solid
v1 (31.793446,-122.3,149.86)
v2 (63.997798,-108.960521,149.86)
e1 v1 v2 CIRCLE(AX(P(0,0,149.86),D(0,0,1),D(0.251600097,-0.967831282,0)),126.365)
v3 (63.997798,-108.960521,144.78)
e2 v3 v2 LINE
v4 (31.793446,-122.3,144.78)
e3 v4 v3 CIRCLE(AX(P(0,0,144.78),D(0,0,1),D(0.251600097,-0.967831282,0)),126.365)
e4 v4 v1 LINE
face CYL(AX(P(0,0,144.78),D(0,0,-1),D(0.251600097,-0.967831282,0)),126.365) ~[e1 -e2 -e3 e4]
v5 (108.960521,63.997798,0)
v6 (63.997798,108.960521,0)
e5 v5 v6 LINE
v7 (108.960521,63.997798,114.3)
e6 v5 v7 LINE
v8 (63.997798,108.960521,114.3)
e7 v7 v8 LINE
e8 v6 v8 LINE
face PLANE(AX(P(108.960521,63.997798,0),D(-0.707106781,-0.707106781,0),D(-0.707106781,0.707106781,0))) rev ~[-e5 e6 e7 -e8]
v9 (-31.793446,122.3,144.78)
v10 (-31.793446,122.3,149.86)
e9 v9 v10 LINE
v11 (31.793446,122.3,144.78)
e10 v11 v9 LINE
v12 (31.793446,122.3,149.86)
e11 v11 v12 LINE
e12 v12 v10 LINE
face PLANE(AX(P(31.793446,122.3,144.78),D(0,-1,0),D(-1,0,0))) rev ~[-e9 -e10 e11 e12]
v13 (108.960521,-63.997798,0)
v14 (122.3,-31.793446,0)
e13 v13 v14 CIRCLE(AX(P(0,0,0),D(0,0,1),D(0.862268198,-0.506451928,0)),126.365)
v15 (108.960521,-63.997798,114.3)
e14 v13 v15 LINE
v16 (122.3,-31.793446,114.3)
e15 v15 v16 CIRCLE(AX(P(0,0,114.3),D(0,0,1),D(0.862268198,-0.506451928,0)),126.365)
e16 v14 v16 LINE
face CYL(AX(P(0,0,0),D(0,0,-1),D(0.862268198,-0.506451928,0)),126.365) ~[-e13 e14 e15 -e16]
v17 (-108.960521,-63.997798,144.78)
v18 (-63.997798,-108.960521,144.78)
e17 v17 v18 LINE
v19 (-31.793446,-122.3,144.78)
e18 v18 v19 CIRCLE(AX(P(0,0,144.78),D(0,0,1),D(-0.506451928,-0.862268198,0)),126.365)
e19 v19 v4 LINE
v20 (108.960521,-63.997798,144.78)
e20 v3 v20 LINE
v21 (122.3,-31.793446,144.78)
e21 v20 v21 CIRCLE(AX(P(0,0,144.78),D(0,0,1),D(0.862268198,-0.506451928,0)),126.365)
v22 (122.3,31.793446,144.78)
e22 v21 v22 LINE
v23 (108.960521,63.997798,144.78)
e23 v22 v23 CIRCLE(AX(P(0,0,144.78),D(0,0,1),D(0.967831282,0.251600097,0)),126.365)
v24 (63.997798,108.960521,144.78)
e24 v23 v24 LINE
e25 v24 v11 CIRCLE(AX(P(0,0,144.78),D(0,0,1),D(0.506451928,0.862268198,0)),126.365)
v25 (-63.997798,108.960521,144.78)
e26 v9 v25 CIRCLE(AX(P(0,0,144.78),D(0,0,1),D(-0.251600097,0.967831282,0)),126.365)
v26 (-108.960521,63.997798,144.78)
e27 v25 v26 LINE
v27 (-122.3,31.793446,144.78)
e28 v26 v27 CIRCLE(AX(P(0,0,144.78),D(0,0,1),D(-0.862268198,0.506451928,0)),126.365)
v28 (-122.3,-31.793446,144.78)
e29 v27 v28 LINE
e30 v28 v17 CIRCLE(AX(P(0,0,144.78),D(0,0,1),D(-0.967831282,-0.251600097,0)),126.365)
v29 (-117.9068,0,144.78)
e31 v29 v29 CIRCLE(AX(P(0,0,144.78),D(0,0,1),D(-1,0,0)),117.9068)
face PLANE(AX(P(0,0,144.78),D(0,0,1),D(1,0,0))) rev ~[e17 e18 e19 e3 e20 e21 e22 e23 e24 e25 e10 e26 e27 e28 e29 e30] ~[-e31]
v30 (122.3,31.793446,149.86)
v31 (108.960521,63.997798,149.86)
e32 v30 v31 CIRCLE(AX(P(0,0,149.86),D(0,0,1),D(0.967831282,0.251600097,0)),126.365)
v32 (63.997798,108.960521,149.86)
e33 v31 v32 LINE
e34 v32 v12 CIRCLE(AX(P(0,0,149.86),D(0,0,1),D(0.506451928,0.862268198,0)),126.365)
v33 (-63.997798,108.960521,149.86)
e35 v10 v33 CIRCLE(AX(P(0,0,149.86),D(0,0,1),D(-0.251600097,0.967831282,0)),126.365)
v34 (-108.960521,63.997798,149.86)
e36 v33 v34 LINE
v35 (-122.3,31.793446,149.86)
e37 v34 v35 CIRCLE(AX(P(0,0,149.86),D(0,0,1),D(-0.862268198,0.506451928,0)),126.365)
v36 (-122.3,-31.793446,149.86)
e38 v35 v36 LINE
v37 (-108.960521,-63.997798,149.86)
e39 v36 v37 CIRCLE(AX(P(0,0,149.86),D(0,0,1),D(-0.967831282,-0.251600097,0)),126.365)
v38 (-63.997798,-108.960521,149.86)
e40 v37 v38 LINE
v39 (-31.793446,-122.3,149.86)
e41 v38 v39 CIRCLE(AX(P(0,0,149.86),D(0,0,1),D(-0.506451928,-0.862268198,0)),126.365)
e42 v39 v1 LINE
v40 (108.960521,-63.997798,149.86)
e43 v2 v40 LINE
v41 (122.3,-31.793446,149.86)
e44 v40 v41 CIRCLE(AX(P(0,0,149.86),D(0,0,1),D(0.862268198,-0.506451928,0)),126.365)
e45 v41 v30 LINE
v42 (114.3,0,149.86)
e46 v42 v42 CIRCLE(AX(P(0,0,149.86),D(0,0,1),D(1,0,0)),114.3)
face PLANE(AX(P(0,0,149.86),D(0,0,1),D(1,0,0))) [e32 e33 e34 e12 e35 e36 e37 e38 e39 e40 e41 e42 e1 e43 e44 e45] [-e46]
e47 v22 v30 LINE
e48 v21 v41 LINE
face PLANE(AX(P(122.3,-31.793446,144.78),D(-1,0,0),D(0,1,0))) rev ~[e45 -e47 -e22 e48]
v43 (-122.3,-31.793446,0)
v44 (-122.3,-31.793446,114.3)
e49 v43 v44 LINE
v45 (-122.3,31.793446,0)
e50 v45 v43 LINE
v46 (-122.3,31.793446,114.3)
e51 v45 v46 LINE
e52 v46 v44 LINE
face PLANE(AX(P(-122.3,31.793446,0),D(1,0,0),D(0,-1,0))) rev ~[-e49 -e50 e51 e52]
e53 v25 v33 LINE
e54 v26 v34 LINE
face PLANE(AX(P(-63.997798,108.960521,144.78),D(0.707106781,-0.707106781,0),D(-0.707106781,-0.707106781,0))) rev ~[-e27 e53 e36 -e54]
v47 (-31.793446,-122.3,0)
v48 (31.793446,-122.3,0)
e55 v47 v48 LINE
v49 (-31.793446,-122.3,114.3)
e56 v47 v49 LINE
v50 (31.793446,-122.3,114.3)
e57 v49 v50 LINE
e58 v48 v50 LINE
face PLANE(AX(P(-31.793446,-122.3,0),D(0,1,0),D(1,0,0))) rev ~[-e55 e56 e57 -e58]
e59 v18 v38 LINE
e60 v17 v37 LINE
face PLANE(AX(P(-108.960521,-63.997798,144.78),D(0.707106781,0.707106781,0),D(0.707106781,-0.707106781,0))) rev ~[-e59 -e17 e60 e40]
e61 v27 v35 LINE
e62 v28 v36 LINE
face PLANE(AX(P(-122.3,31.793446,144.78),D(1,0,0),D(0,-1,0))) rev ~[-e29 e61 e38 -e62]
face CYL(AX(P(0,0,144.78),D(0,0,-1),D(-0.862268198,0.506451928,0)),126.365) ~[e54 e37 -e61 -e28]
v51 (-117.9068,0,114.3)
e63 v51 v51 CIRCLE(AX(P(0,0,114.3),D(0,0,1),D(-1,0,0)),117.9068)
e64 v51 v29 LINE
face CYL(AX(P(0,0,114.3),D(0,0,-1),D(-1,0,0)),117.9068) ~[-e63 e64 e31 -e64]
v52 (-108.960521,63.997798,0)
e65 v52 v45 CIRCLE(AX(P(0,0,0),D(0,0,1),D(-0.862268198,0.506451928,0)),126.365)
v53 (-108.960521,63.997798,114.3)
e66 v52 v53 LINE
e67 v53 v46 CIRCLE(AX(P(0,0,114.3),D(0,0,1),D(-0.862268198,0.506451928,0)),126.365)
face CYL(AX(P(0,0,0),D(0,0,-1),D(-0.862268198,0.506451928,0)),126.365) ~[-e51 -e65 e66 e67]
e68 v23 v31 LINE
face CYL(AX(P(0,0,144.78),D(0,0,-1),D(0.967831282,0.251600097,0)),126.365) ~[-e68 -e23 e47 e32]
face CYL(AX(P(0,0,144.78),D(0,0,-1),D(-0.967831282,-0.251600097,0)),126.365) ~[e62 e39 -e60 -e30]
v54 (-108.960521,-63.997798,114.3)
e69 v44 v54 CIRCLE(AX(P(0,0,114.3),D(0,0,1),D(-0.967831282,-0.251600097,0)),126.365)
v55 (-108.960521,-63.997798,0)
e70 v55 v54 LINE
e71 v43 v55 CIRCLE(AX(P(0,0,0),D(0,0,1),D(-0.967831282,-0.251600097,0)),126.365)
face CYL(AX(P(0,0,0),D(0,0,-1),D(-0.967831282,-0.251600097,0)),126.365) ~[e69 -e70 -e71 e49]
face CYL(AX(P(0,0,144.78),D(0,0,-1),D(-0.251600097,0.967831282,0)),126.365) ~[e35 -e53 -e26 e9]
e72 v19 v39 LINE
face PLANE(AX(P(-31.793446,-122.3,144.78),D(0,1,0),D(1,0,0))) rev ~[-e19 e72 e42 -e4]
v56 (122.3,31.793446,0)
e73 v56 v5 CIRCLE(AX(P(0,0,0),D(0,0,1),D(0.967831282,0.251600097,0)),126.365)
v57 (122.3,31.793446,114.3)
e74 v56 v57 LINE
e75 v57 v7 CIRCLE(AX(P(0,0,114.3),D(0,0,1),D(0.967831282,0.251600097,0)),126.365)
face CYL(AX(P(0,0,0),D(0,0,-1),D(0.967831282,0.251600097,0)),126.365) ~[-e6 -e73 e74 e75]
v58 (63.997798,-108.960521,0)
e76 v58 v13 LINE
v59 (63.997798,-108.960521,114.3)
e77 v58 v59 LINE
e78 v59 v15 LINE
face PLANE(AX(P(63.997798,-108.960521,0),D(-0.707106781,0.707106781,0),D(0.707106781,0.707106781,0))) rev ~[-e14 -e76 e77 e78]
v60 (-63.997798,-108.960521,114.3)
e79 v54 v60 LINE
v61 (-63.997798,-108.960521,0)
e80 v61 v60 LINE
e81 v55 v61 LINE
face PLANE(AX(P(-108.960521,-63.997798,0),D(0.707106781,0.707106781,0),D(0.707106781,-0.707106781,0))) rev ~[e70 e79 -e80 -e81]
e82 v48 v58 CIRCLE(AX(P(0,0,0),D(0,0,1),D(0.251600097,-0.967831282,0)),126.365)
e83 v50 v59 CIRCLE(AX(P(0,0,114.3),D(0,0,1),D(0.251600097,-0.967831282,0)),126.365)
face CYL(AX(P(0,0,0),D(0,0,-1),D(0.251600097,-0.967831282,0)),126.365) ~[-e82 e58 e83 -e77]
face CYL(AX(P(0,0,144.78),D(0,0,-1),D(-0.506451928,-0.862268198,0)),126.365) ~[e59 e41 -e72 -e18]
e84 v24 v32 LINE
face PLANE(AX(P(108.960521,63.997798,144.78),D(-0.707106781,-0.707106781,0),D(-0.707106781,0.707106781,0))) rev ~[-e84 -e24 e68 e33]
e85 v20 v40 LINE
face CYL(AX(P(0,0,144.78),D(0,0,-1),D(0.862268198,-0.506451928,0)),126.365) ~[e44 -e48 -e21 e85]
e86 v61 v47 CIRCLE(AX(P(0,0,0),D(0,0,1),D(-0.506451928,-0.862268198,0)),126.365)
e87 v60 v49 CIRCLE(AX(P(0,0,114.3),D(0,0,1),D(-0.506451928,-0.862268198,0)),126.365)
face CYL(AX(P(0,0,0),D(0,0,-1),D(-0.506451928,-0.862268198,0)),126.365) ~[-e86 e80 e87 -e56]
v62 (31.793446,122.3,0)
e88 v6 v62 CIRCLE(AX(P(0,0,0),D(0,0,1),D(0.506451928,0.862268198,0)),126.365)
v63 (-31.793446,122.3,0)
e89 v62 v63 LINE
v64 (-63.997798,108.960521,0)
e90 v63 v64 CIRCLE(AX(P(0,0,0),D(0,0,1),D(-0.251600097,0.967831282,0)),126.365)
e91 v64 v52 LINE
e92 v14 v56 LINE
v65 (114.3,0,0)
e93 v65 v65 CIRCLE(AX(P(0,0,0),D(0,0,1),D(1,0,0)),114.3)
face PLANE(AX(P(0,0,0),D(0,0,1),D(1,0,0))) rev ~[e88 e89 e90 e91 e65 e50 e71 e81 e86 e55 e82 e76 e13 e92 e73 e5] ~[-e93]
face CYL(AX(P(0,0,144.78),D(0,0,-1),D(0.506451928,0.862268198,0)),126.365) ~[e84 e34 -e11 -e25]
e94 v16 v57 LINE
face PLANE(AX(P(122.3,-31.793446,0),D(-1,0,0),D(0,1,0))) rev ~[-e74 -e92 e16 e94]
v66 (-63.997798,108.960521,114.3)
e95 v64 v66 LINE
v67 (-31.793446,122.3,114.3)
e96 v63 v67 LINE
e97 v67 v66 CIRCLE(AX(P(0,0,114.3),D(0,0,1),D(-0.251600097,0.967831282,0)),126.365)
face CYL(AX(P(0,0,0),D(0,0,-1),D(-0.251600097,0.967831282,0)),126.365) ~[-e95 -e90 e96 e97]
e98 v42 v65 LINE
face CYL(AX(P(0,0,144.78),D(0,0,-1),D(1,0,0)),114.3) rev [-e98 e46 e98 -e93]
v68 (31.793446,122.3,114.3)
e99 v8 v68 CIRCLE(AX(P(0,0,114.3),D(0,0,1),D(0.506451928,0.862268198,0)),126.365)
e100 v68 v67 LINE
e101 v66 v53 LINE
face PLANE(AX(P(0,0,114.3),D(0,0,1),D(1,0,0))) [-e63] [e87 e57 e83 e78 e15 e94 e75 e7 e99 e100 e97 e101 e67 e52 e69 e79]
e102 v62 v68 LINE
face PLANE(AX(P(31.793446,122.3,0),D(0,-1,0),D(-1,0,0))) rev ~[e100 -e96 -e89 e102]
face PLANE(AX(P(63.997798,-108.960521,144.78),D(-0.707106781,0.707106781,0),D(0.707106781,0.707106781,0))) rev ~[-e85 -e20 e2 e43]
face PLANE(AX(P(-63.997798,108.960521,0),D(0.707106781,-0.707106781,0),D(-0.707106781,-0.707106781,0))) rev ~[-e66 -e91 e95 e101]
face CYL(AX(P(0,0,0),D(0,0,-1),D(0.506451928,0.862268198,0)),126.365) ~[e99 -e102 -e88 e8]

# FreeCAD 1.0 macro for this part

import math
import FreeCAD as App
import Part
import Sketcher
Q = App.Units.Quantity

doc = App.newDocument("Part")
body = doc.addObject("PartDesign::Body", "Body")

# Sketch on XY plane
sketch1 = body.newObject("Sketcher::SketchObject", "Sketch")
sketch1.AttachmentSupport = (doc.getObject("XY_Plane"), [""])
sketch1.MapMode = "FlatFace"
sketch1.addGeometry(Part.ArcOfCircle(Part.Circle(App.Vector(0, 0, 0), App.Vector(0, 0, 1), 126), math.radians(104.57), math.radians(120.43)), False)
sketch1.addGeometry(Part.LineSegment(App.Vector(-64, 109, 0), App.Vector(-109, 64, 0)), False)
sketch1.addGeometry(Part.ArcOfCircle(Part.Circle(App.Vector(0, 0, 0), App.Vector(0, 0, 1), 126), math.radians(149.57), math.radians(165.43)), False)
sketch1.addGeometry(Part.LineSegment(App.Vector(-122, 32, 0), App.Vector(-122, -32, 0)), False)
sketch1.addGeometry(Part.ArcOfCircle(Part.Circle(App.Vector(0, 0, 0), App.Vector(0, 0, 1), 126), math.radians(-165.43), math.radians(-149.57)), False)
sketch1.addGeometry(Part.LineSegment(App.Vector(-109, -64, 0), App.Vector(-64, -109, 0)), False)
sketch1.addGeometry(Part.ArcOfCircle(Part.Circle(App.Vector(0, 0, 0), App.Vector(0, 0, 1), 126), math.radians(-120.43), math.radians(-104.57)), False)
sketch1.addGeometry(Part.LineSegment(App.Vector(-32, -122, 0), App.Vector(32, -122, 0)), False)
sketch1.addGeometry(Part.ArcOfCircle(Part.Circle(App.Vector(0, 0, 0), App.Vector(0, 0, 1), 126), math.radians(-75.43), math.radians(-59.57)), False)
sketch1.addGeometry(Part.LineSegment(App.Vector(64, -109, 0), App.Vector(109, -64, 0)), False)
sketch1.addGeometry(Part.ArcOfCircle(Part.Circle(App.Vector(0, 0, 0), App.Vector(0, 0, 1), 126), math.radians(-30.43), math.radians(-14.57)), False)
sketch1.addGeometry(Part.LineSegment(App.Vector(122, -32, 0), App.Vector(122, 32, 0)), False)
sketch1.addGeometry(Part.ArcOfCircle(Part.Circle(App.Vector(0, 0, 0), App.Vector(0, 0, 1), 126), math.radians(14.57), math.radians(30.43)), False)
sketch1.addGeometry(Part.LineSegment(App.Vector(109, 64, 0), App.Vector(64, 109, 0)), False)
sketch1.addGeometry(Part.ArcOfCircle(Part.Circle(App.Vector(0, 0, 0), App.Vector(0, 0, 1), 126), math.radians(59.57), math.radians(75.43)), False)
sketch1.addGeometry(Part.LineSegment(App.Vector(32, 122, 0), App.Vector(-32, 122, 0)), False)
sketch1.addGeometry(Part.Circle(App.Vector(0, 0, 0), App.Vector(0, 0, 1), 114), False)
sketch1.addConstraint(Sketcher.Constraint("Coincident", 0, 2, 1, 1))
sketch1.addConstraint(Sketcher.Constraint("Coincident", 1, 2, 2, 1))
sketch1.addConstraint(Sketcher.Constraint("Coincident", 2, 2, 3, 1))
sketch1.addConstraint(Sketcher.Constraint("Coincident", 3, 2, 4, 1))
sketch1.addConstraint(Sketcher.Constraint("Coincident", 4, 2, 5, 1))
sketch1.addConstraint(Sketcher.Constraint("Coincident", 5, 2, 6, 1))
sketch1.addConstraint(Sketcher.Constraint("Coincident", 6, 2, 7, 1))
sketch1.addConstraint(Sketcher.Constraint("Coincident", 7, 2, 8, 1))
sketch1.addConstraint(Sketcher.Constraint("Coincident", 8, 2, 9, 1))
sketch1.addConstraint(Sketcher.Constraint("Coincident", 9, 2, 10, 1))
sketch1.addConstraint(Sketcher.Constraint("Coincident", 10, 2, 11, 1))
sketch1.addConstraint(Sketcher.Constraint("Coincident", 11, 2, 12, 1))
sketch1.addConstraint(Sketcher.Constraint("Coincident", 12, 2, 13, 1))
sketch1.addConstraint(Sketcher.Constraint("Coincident", 13, 2, 14, 1))
sketch1.addConstraint(Sketcher.Constraint("Coincident", 14, 2, 15, 1))
sketch1.addConstraint(Sketcher.Constraint("Coincident", 15, 2, 0, 1))
sketch1.addConstraint(Sketcher.Constraint("Vertical", 3))
sketch1.addConstraint(Sketcher.Constraint("Horizontal", 7))
sketch1.addConstraint(Sketcher.Constraint("Vertical", 11))
sketch1.addConstraint(Sketcher.Constraint("Horizontal", 15))
sketch1.addConstraint(Sketcher.Constraint("Coincident", 0, 3, -1, 1))
sketch1.addConstraint(Sketcher.Constraint("Coincident", 2, 3, -1, 1))
sketch1.addConstraint(Sketcher.Constraint("Coincident", 4, 3, -1, 1))
sketch1.addConstraint(Sketcher.Constraint("Coincident", 6, 3, -1, 1))
sketch1.addConstraint(Sketcher.Constraint("Coincident", 8, 3, -1, 1))
sketch1.addConstraint(Sketcher.Constraint("Coincident", 10, 3, -1, 1))
sketch1.addConstraint(Sketcher.Constraint("Coincident", 12, 3, -1, 1))
sketch1.addConstraint(Sketcher.Constraint("Coincident", 14, 3, -1, 1))
sketch1.addConstraint(Sketcher.Constraint("Coincident", 16, 3, -1, 1))
sketch1.addConstraint(Sketcher.Constraint("Equal", 0, 2))
sketch1.addConstraint(Sketcher.Constraint("Equal", 2, 4))
sketch1.addConstraint(Sketcher.Constraint("Equal", 4, 6))
sketch1.addConstraint(Sketcher.Constraint("Equal", 6, 8))
sketch1.addConstraint(Sketcher.Constraint("Equal", 8, 10))
sketch1.addConstraint(Sketcher.Constraint("Equal", 10, 12))
sketch1.addConstraint(Sketcher.Constraint("Equal", 12, 14))
sketch1.addConstraint(Sketcher.Constraint("Perpendicular", 1, 5))
sketch1.addConstraint(Sketcher.Constraint("Perpendicular", 5, 9))
sketch1.addConstraint(Sketcher.Constraint("Perpendicular", 9, 13))
sketch1.addConstraint(Sketcher.Constraint("Horizontal", 5, 2, 8, 2))
sketch1.addConstraint(Sketcher.Constraint("Horizontal", 4, 2, 9, 2))
sketch1.addConstraint(Sketcher.Constraint("Horizontal", 3, 2, 10, 2))
sketch1.addConstraint(Sketcher.Constraint("Horizontal", 1, 2, 12, 2))
sketch1.addConstraint(Sketcher.Constraint("Vertical", 1, 2, 4, 2))
sketch1.addConstraint(Sketcher.Constraint("Vertical", 7, 2, 14, 2))
sketch1.addConstraint(Sketcher.Constraint("Equal", 15, 3))
sketch1.addConstraint(Sketcher.Constraint("Diameter", 16, Q("9 in")))
sketch1.addConstraint(Sketcher.Constraint("Radius", 0, Q("4.975 in")))
sketch1.addConstraint(Sketcher.Constraint("DistanceX", 2, 2, -1, 1, Q("122.3 mm")))
sketch1.addConstraint(Sketcher.Constraint("DistanceY", -1, 1, 0, 2, Q("108.960521 mm")))
pad1 = body.newObject("PartDesign::Pad", "Pad")
pad1.Profile = sketch1
pad1.Length = Q("4.5 in")

# Sketch on XY plane
sketch2 = body.newObject("Sketcher::SketchObject", "Sketch001")
sketch2.AttachmentSupport = (doc.getObject("XY_Plane"), [""])
sketch2.MapMode = "FlatFace"
sketch2.AttachmentOffset = App.Placement(App.Vector(0, 0, 4.5 * 25.4), App.Rotation())
sketch2.addGeometry(Part.Circle(App.Vector(0, 0, 0), App.Vector(0, 0, 1), 118), False)
sketch2.addGeometry(Part.Circle(App.Vector(0, 0, 0), App.Vector(0, 0, 1), 114), False)
sketch2.addConstraint(Sketcher.Constraint("Coincident", 0, 3, -1, 1))
sketch2.addConstraint(Sketcher.Constraint("Coincident", 1, 3, -1, 1))
sketch2.addConstraint(Sketcher.Constraint("Diameter", 1, Q("9 in")))
sketch2.addConstraint(Sketcher.Constraint("Diameter", 0, Q("9.284 in")))
pad2 = body.newObject("PartDesign::Pad", "Pad001")
pad2.Profile = sketch2
pad2.Length = Q("1.2 in")

# Sketch on XY plane
sketch3 = body.newObject("Sketcher::SketchObject", "Sketch002")
sketch3.AttachmentSupport = (doc.getObject("XY_Plane"), [""])
sketch3.MapMode = "FlatFace"
sketch3.AttachmentOffset = App.Placement(App.Vector(0, 0, 5.7 * 25.4), App.Rotation())
sketch3.addGeometry(Part.LineSegment(App.Vector(122, -32, 0), App.Vector(122, 32, 0)), False)
sketch3.addGeometry(Part.ArcOfCircle(Part.Circle(App.Vector(0, 0, 0), App.Vector(0, 0, 1), 126), math.radians(14.57), math.radians(30.43)), False)
sketch3.addGeometry(Part.LineSegment(App.Vector(109, 64, 0), App.Vector(64, 109, 0)), False)
sketch3.addGeometry(Part.ArcOfCircle(Part.Circle(App.Vector(0, 0, 0), App.Vector(0, 0, 1), 126), math.radians(59.57), math.radians(75.43)), False)
sketch3.addGeometry(Part.LineSegment(App.Vector(32, 122, 0), App.Vector(-32, 122, 0)), False)
sketch3.addGeometry(Part.ArcOfCircle(Part.Circle(App.Vector(0, 0, 0), App.Vector(0, 0, 1), 126), math.radians(104.57), math.radians(120.43)), False)
sketch3.addGeometry(Part.LineSegment(App.Vector(-64, 109, 0), App.Vector(-109, 64, 0)), False)
sketch3.addGeometry(Part.ArcOfCircle(Part.Circle(App.Vector(0, 0, 0), App.Vector(0, 0, 1), 126), math.radians(149.57), math.radians(165.43)), False)
sketch3.addGeometry(Part.LineSegment(App.Vector(-122, 32, 0), App.Vector(-122, -32, 0)), False)
sketch3.addGeometry(Part.ArcOfCircle(Part.Circle(App.Vector(0, 0, 0), App.Vector(0, 0, 1), 126), math.radians(-165.43), math.radians(-149.57)), False)
sketch3.addGeometry(Part.LineSegment(App.Vector(-109, -64, 0), App.Vector(-64, -109, 0)), False)
sketch3.addGeometry(Part.ArcOfCircle(Part.Circle(App.Vector(0, 0, 0), App.Vector(0, 0, 1), 126), math.radians(-120.43), math.radians(-104.57)), False)
sketch3.addGeometry(Part.LineSegment(App.Vector(-32, -122, 0), App.Vector(32, -122, 0)), False)
sketch3.addGeometry(Part.ArcOfCircle(Part.Circle(App.Vector(0, 0, 0), App.Vector(0, 0, 1), 126), math.radians(-75.43), math.radians(-59.57)), False)
sketch3.addGeometry(Part.LineSegment(App.Vector(64, -109, 0), App.Vector(109, -64, 0)), False)
sketch3.addGeometry(Part.ArcOfCircle(Part.Circle(App.Vector(0, 0, 0), App.Vector(0, 0, 1), 126), math.radians(-30.43), math.radians(-14.57)), False)
sketch3.addGeometry(Part.Circle(App.Vector(0, 0, 0), App.Vector(0, 0, 1), 114), False)
sketch3.addConstraint(Sketcher.Constraint("Coincident", 0, 2, 1, 1))
sketch3.addConstraint(Sketcher.Constraint("Coincident", 1, 2, 2, 1))
sketch3.addConstraint(Sketcher.Constraint("Coincident", 2, 2, 3, 1))
sketch3.addConstraint(Sketcher.Constraint("Coincident", 3, 2, 4, 1))
sketch3.addConstraint(Sketcher.Constraint("Coincident", 4, 2, 5, 1))
sketch3.addConstraint(Sketcher.Constraint("Coincident", 5, 2, 6, 1))
sketch3.addConstraint(Sketcher.Constraint("Coincident", 6, 2, 7, 1))
sketch3.addConstraint(Sketcher.Constraint("Coincident", 7, 2, 8, 1))
sketch3.addConstraint(Sketcher.Constraint("Coincident", 8, 2, 9, 1))
sketch3.addConstraint(Sketcher.Constraint("Coincident", 9, 2, 10, 1))
sketch3.addConstraint(Sketcher.Constraint("Coincident", 10, 2, 11, 1))
sketch3.addConstraint(Sketcher.Constraint("Coincident", 11, 2, 12, 1))
sketch3.addConstraint(Sketcher.Constraint("Coincident", 12, 2, 13, 1))
sketch3.addConstraint(Sketcher.Constraint("Coincident", 13, 2, 14, 1))
sketch3.addConstraint(Sketcher.Constraint("Coincident", 14, 2, 15, 1))
sketch3.addConstraint(Sketcher.Constraint("Coincident", 15, 2, 0, 1))
sketch3.addConstraint(Sketcher.Constraint("Vertical", 0))
sketch3.addConstraint(Sketcher.Constraint("Horizontal", 4))
sketch3.addConstraint(Sketcher.Constraint("Vertical", 8))
sketch3.addConstraint(Sketcher.Constraint("Horizontal", 12))
sketch3.addConstraint(Sketcher.Constraint("Coincident", 1, 3, -1, 1))
sketch3.addConstraint(Sketcher.Constraint("Coincident", 3, 3, -1, 1))
sketch3.addConstraint(Sketcher.Constraint("Coincident", 5, 3, -1, 1))
sketch3.addConstraint(Sketcher.Constraint("Coincident", 7, 3, -1, 1))
sketch3.addConstraint(Sketcher.Constraint("Coincident", 9, 3, -1, 1))
sketch3.addConstraint(Sketcher.Constraint("Coincident", 11, 3, -1, 1))
sketch3.addConstraint(Sketcher.Constraint("Coincident", 13, 3, -1, 1))
sketch3.addConstraint(Sketcher.Constraint("Coincident", 15, 3, -1, 1))
sketch3.addConstraint(Sketcher.Constraint("Coincident", 16, 3, -1, 1))
sketch3.addConstraint(Sketcher.Constraint("Equal", 1, 3))
sketch3.addConstraint(Sketcher.Constraint("Equal", 3, 5))
sketch3.addConstraint(Sketcher.Constraint("Equal", 5, 7))
sketch3.addConstraint(Sketcher.Constraint("Equal", 7, 9))
sketch3.addConstraint(Sketcher.Constraint("Equal", 9, 11))
sketch3.addConstraint(Sketcher.Constraint("Equal", 11, 13))
sketch3.addConstraint(Sketcher.Constraint("Equal", 13, 15))
sketch3.addConstraint(Sketcher.Constraint("Perpendicular", 2, 6))
sketch3.addConstraint(Sketcher.Constraint("Perpendicular", 6, 10))
sketch3.addConstraint(Sketcher.Constraint("Perpendicular", 10, 14))
sketch3.addConstraint(Sketcher.Constraint("Horizontal", 2, 2, 5, 2))
sketch3.addConstraint(Sketcher.Constraint("Horizontal", 1, 2, 6, 2))
sketch3.addConstraint(Sketcher.Constraint("Horizontal", 0, 2, 7, 2))
sketch3.addConstraint(Sketcher.Constraint("Horizontal", 10, 2, 13, 2))
sketch3.addConstraint(Sketcher.Constraint("Vertical", 6, 2, 9, 2))
sketch3.addConstraint(Sketcher.Constraint("Vertical", 4, 2, 11, 2))
sketch3.addConstraint(Sketcher.Constraint("Equal", 12, 0))
sketch3.addConstraint(Sketcher.Constraint("Diameter", 16, Q("9 in")))
sketch3.addConstraint(Sketcher.Constraint("Radius", 1, Q("4.975 in")))
sketch3.addConstraint(Sketcher.Constraint("DistanceX", -1, 1, 0, 2, Q("122.3 mm")))
sketch3.addConstraint(Sketcher.Constraint("DistanceX", -1, 1, 1, 2, Q("108.960521 mm")))
pad3 = body.newObject("PartDesign::Pad", "Pad002")
pad3.Profile = sketch3
pad3.Length = Q("0.2 in")

doc.recompute()
